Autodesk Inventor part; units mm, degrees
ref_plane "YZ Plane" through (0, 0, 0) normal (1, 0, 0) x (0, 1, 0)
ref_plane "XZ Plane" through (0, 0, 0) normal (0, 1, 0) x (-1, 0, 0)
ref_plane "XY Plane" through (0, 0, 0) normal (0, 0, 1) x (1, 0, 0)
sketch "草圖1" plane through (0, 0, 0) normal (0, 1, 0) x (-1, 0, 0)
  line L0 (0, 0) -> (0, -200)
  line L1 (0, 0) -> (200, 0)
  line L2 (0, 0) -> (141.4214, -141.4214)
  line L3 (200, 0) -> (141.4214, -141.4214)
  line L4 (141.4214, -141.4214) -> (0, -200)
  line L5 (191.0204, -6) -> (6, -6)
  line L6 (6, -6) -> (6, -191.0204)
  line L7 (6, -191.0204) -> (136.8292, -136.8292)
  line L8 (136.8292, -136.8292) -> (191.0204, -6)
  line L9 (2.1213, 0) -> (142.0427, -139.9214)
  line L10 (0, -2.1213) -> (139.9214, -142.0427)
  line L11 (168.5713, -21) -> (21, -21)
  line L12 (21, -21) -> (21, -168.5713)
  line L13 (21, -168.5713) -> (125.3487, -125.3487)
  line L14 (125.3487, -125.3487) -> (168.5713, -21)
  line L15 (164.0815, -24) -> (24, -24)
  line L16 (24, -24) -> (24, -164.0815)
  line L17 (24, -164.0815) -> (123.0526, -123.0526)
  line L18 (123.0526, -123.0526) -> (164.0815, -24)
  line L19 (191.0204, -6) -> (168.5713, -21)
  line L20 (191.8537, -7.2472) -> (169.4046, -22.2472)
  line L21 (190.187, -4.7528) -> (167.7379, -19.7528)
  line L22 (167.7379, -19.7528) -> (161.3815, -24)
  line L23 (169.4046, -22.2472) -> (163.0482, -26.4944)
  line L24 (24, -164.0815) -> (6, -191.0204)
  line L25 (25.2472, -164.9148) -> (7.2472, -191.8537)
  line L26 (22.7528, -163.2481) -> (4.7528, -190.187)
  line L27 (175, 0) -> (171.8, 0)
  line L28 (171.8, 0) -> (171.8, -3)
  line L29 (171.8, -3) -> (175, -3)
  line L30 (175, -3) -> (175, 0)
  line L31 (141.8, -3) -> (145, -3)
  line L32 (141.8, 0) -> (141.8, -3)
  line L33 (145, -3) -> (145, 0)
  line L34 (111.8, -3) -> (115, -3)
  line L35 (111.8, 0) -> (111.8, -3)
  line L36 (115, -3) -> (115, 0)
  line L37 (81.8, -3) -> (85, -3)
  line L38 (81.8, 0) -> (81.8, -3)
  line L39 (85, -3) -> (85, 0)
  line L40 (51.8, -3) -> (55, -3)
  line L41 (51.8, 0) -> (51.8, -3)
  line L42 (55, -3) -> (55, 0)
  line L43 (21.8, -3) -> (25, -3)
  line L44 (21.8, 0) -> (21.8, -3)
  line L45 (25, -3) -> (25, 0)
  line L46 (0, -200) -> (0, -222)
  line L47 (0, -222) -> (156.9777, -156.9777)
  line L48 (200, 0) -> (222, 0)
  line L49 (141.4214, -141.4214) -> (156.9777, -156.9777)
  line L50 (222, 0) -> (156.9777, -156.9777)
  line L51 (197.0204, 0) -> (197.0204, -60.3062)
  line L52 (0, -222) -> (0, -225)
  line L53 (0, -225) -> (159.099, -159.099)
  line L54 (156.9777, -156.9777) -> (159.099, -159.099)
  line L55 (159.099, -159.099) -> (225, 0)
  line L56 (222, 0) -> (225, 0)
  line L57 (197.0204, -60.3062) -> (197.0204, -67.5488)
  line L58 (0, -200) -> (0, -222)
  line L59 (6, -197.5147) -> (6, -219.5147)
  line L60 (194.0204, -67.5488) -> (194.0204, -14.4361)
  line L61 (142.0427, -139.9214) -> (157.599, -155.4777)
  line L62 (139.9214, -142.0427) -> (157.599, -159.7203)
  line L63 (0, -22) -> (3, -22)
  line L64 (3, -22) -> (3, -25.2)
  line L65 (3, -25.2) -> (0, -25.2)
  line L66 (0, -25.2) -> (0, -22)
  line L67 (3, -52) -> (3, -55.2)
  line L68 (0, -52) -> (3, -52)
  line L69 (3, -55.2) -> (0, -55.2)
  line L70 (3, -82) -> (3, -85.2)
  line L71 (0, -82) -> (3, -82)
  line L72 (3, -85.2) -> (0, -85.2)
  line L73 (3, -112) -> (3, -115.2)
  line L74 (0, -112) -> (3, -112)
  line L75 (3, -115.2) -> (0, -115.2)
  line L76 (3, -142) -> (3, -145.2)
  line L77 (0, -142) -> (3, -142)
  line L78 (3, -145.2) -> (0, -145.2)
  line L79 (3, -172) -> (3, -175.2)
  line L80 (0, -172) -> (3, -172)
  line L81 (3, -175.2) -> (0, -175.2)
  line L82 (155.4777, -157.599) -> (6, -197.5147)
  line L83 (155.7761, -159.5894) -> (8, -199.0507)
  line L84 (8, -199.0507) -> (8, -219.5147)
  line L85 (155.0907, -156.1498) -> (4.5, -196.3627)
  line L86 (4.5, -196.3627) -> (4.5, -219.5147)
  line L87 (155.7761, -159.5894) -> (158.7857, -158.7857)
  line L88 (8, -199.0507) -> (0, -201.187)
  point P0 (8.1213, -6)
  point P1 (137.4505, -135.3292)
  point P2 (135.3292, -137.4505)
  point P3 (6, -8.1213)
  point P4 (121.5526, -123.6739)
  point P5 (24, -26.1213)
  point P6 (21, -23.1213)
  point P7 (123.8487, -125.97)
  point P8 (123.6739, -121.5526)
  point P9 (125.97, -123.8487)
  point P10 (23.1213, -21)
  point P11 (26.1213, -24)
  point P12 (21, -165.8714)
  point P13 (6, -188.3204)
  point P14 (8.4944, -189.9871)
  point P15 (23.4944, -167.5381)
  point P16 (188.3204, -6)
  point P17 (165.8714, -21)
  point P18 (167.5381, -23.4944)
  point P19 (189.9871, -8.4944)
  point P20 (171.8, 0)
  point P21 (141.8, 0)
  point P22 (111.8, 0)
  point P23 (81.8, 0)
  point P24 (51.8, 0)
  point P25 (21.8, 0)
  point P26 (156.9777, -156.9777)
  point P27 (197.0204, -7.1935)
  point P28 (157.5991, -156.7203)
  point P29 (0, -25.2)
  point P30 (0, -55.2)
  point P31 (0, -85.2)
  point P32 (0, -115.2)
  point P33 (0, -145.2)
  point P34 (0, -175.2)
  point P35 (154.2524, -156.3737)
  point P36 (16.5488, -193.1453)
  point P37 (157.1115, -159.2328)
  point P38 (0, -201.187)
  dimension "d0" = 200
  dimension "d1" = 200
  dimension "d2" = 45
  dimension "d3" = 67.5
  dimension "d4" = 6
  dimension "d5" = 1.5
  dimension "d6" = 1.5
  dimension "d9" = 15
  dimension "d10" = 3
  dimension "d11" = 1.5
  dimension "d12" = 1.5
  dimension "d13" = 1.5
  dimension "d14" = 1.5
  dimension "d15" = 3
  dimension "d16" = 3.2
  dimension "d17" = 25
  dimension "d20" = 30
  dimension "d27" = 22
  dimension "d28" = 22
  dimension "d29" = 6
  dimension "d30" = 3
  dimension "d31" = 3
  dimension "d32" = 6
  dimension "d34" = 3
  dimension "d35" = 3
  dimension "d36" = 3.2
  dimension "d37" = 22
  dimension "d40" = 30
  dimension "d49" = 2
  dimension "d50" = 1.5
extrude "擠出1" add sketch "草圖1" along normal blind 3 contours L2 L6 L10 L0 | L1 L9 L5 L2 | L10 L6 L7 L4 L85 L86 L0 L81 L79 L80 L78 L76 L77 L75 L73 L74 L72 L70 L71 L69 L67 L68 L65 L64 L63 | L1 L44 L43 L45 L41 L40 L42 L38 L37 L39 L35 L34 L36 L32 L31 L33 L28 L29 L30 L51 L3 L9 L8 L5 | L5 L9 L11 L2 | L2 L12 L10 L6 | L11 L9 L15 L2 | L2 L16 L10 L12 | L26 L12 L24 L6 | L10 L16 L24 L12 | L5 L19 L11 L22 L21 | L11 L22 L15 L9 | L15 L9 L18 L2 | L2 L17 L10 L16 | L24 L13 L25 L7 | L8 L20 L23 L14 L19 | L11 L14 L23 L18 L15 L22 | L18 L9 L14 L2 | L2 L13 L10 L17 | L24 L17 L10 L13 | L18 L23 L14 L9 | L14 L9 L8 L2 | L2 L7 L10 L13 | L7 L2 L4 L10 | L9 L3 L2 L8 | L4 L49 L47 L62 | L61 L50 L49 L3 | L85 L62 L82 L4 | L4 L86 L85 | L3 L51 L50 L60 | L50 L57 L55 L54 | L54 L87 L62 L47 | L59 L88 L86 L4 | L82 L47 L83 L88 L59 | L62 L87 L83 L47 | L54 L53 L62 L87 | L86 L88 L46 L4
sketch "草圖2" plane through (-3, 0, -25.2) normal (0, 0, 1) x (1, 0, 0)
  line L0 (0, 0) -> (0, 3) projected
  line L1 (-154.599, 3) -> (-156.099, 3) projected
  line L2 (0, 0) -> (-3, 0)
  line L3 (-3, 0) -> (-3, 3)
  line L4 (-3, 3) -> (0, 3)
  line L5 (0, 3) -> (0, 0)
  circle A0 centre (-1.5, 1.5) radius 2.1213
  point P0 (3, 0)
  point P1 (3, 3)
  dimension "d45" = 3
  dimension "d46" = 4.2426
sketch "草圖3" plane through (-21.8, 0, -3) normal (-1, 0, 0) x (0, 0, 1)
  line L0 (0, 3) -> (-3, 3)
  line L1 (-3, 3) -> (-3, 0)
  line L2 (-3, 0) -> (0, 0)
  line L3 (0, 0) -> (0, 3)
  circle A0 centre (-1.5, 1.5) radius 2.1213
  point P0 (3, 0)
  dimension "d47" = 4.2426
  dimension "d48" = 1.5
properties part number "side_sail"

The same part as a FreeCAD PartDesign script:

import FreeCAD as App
import Part
import Sketcher
Q = App.Units.Quantity

doc = App.newDocument("Part")
params = doc.addObject("Spreadsheet::Sheet", "Params")
for row, (alias, value) in enumerate([
    ("sketch1_width", "3 mm"),
    ("sketch1_height", "22 mm"),
    ("sketch1_length", "22 mm"),
    ("sketch1_width2", "3.2 mm"),
    ("sketch1_width3", "26.8 mm"),
    ("pad1_length", "3 mm"),
], start=1):
    params.set(f"A{row}", alias)
    params.set(f"B{row}", "=" + value)
    params.setAlias(f"B{row}", alias)

body = doc.addObject("PartDesign::Body", "Body")

# Sketch on XZ plane
sketch1 = body.newObject("Sketcher::SketchObject", "Sketch")
sketch1.AttachmentSupport = (doc.getObject("XZ_Plane"), [""])
sketch1.MapMode = "FlatFace"
sketch1.addGeometry(Part.LineSegment(App.Vector(0, 0, 0), App.Vector(0, -22, 0)), False)
sketch1.addGeometry(Part.LineSegment(App.Vector(0, -22, 0), App.Vector(-3, -22, 0)), False)
sketch1.addGeometry(Part.LineSegment(App.Vector(-3, -22, 0), App.Vector(-3, -25.2, 0)), False)
sketch1.addGeometry(Part.LineSegment(App.Vector(-3, -25.2, 0), App.Vector(0, -25.2, 0)), False)
sketch1.addGeometry(Part.LineSegment(App.Vector(0, -25.2, 0), App.Vector(0, -52, 0)), False)
sketch1.addGeometry(Part.LineSegment(App.Vector(0, -52, 0), App.Vector(-3, -52, 0)), False)
sketch1.addGeometry(Part.LineSegment(App.Vector(-3, -52, 0), App.Vector(-3, -55.2, 0)), False)
sketch1.addGeometry(Part.LineSegment(App.Vector(-3, -55.2, 0), App.Vector(0, -55.2, 0)), False)
sketch1.addGeometry(Part.LineSegment(App.Vector(0, -55.2, 0), App.Vector(0, -82, 0)), False)
sketch1.addGeometry(Part.LineSegment(App.Vector(0, -82, 0), App.Vector(-3, -82, 0)), False)
sketch1.addGeometry(Part.LineSegment(App.Vector(-3, -82, 0), App.Vector(-3, -85.2, 0)), False)
sketch1.addGeometry(Part.LineSegment(App.Vector(-3, -85.2, 0), App.Vector(0, -85.2, 0)), False)
sketch1.addGeometry(Part.LineSegment(App.Vector(0, -85.2, 0), App.Vector(0, -112, 0)), False)
sketch1.addGeometry(Part.LineSegment(App.Vector(0, -112, 0), App.Vector(-3, -112, 0)), False)
sketch1.addGeometry(Part.LineSegment(App.Vector(-3, -112, 0), App.Vector(-3, -115.2, 0)), False)
sketch1.addGeometry(Part.LineSegment(App.Vector(-3, -115.2, 0), App.Vector(0, -115.2, 0)), False)
sketch1.addGeometry(Part.LineSegment(App.Vector(0, -115.2, 0), App.Vector(0, -142, 0)), False)
sketch1.addGeometry(Part.LineSegment(App.Vector(0, -142, 0), App.Vector(-3, -142, 0)), False)
sketch1.addGeometry(Part.LineSegment(App.Vector(-3, -142, 0), App.Vector(-3, -145.2, 0)), False)
sketch1.addGeometry(Part.LineSegment(App.Vector(-3, -145.2, 0), App.Vector(0, -145.2, 0)), False)
sketch1.addGeometry(Part.LineSegment(App.Vector(0, -145.2, 0), App.Vector(0, -172, 0)), False)
sketch1.addGeometry(Part.LineSegment(App.Vector(0, -172, 0), App.Vector(-3, -172, 0)), False)
sketch1.addGeometry(Part.LineSegment(App.Vector(-3, -172, 0), App.Vector(-3, -175.2, 0)), False)
sketch1.addGeometry(Part.LineSegment(App.Vector(-3, -175.2, 0), App.Vector(0, -175.2, 0)), False)
sketch1.addGeometry(Part.LineSegment(App.Vector(0, -175.2, 0), App.Vector(0, -201.187, 0)), False)
sketch1.addGeometry(Part.LineSegment(App.Vector(0, -201.187, 0), App.Vector(-8, -199.0507, 0)), False)
sketch1.addGeometry(Part.LineSegment(App.Vector(-8, -199.0507, 0), App.Vector(-155.7761, -159.5894, 0)), False)
sketch1.addGeometry(Part.LineSegment(App.Vector(-155.7761, -159.5894, 0), App.Vector(-157.11149, -159.23279, 0)), False)
sketch1.addGeometry(Part.LineSegment(App.Vector(-157.11149, -159.23279, 0), App.Vector(-157.599, -159.7203, 0)), False)
sketch1.addGeometry(Part.LineSegment(App.Vector(-157.599007, -159.720318, 0), App.Vector(-159.099, -159.099, 0)), False)
sketch1.addGeometry(Part.LineSegment(App.Vector(-159.099, -159.099, 0), App.Vector(-197.020362, -67.548784, 0)), False)
sketch1.addGeometry(Part.LineSegment(App.Vector(-197.0204, -67.5488, 0), App.Vector(-197.0204, 0, 0)), False)
sketch1.addGeometry(Part.LineSegment(App.Vector(-197.0204, 0, 0), App.Vector(-175, 0, 0)), False)
sketch1.addGeometry(Part.LineSegment(App.Vector(-175, 0, 0), App.Vector(-175, -3, 0)), False)
sketch1.addGeometry(Part.LineSegment(App.Vector(-175, -3, 0), App.Vector(-171.8, -3, 0)), False)
sketch1.addGeometry(Part.LineSegment(App.Vector(-171.8, -3, 0), App.Vector(-171.8, 0, 0)), False)
sketch1.addGeometry(Part.LineSegment(App.Vector(-171.8, 0, 0), App.Vector(-145, 0, 0)), False)
sketch1.addGeometry(Part.LineSegment(App.Vector(-145, 0, 0), App.Vector(-145, -3, 0)), False)
sketch1.addGeometry(Part.LineSegment(App.Vector(-145, -3, 0), App.Vector(-141.8, -3, 0)), False)
sketch1.addGeometry(Part.LineSegment(App.Vector(-141.8, -3, 0), App.Vector(-141.8, 0, 0)), False)
sketch1.addGeometry(Part.LineSegment(App.Vector(-141.8, 0, 0), App.Vector(-115, 0, 0)), False)
sketch1.addGeometry(Part.LineSegment(App.Vector(-115, 0, 0), App.Vector(-115, -3, 0)), False)
sketch1.addGeometry(Part.LineSegment(App.Vector(-115, -3, 0), App.Vector(-111.8, -3, 0)), False)
sketch1.addGeometry(Part.LineSegment(App.Vector(-111.8, -3, 0), App.Vector(-111.8, 0, 0)), False)
sketch1.addGeometry(Part.LineSegment(App.Vector(-111.8, 0, 0), App.Vector(-85, 0, 0)), False)
sketch1.addGeometry(Part.LineSegment(App.Vector(-85, 0, 0), App.Vector(-85, -3, 0)), False)
sketch1.addGeometry(Part.LineSegment(App.Vector(-85, -3, 0), App.Vector(-81.8, -3, 0)), False)
sketch1.addGeometry(Part.LineSegment(App.Vector(-81.8, -3, 0), App.Vector(-81.8, 0, 0)), False)
sketch1.addGeometry(Part.LineSegment(App.Vector(-81.8, 0, 0), App.Vector(-55, 0, 0)), False)
sketch1.addGeometry(Part.LineSegment(App.Vector(-55, 0, 0), App.Vector(-55, -3, 0)), False)
sketch1.addGeometry(Part.LineSegment(App.Vector(-55, -3, 0), App.Vector(-51.8, -3, 0)), False)
sketch1.addGeometry(Part.LineSegment(App.Vector(-51.8, -3, 0), App.Vector(-51.8, 0, 0)), False)
sketch1.addGeometry(Part.LineSegment(App.Vector(-51.8, 0, 0), App.Vector(-25, 0, 0)), False)
sketch1.addGeometry(Part.LineSegment(App.Vector(-25, 0, 0), App.Vector(-25, -3, 0)), False)
sketch1.addGeometry(Part.LineSegment(App.Vector(-25, -3, 0), App.Vector(-21.8, -3, 0)), False)
sketch1.addGeometry(Part.LineSegment(App.Vector(-21.8, -3, 0), App.Vector(-21.8, 0, 0)), False)
sketch1.addGeometry(Part.LineSegment(App.Vector(-21.8, 0, 0), App.Vector(0, 0, 0)), False)
sketch1.addGeometry(Part.LineSegment(App.Vector(-6, -8.1213, 0), App.Vector(-21, -23.1213, 0)), False)
sketch1.addGeometry(Part.LineSegment(App.Vector(-21, -23.1213, 0), App.Vector(-21, -165.87135, 0)), False)
sketch1.addGeometry(Part.LineSegment(App.Vector(-21, -165.87135, 0), App.Vector(-6, -188.320434, 0)), False)
sketch1.addGeometry(Part.LineSegment(App.Vector(-6, -188.320434, 0), App.Vector(-6, -8.1213, 0)), False)
sketch1.addGeometry(Part.LineSegment(App.Vector(-135.329214, -137.450514, 0), App.Vector(-8.494351, -189.987206, 0)), False)
sketch1.addGeometry(Part.LineSegment(App.Vector(-8.494351, -189.987206, 0), App.Vector(-23.494366, -167.538101, 0)), False)
sketch1.addGeometry(Part.LineSegment(App.Vector(-23.494366, -167.538101, 0), App.Vector(-123.848714, -125.970014, 0)), False)
sketch1.addGeometry(Part.LineSegment(App.Vector(-123.848714, -125.970014, 0), App.Vector(-135.329214, -137.450514, 0)), False)
sketch1.addGeometry(Part.LineSegment(App.Vector(-16.548896, -193.14523, 0), App.Vector(-139.921407, -142.042717, 0)), False)
sketch1.addGeometry(Part.LineSegment(App.Vector(-139.9214, -142.0427, 0), App.Vector(-154.252364, -156.373664, 0)), False)
sketch1.addGeometry(Part.LineSegment(App.Vector(-154.252364, -156.373664, 0), App.Vector(-16.548896, -193.14523, 0)), False)
sketch1.addGeometry(Part.LineSegment(App.Vector(-142.042717, -139.921407, 0), App.Vector(-194.020381, -14.436092, 0)), False)
sketch1.addGeometry(Part.LineSegment(App.Vector(-194.0204, -14.4361, 0), App.Vector(-194.0204, -67.5488, 0)), False)
sketch1.addGeometry(Part.LineSegment(App.Vector(-194.020372, -67.548789, 0), App.Vector(-157.599017, -155.477707, 0)), False)
sketch1.addGeometry(Part.LineSegment(App.Vector(-157.599, -155.4777, 0), App.Vector(-142.0427, -139.9214, 0)), False)
sketch1.addGeometry(Part.LineSegment(App.Vector(-189.987207, -8.49435, 0), App.Vector(-137.450514, -135.329214, 0)), False)
sketch1.addGeometry(Part.LineSegment(App.Vector(-137.450514, -135.329214, 0), App.Vector(-125.970014, -123.848714, 0)), False)
sketch1.addGeometry(Part.LineSegment(App.Vector(-125.970014, -123.848714, 0), App.Vector(-167.538109, -23.494346, 0)), False)
sketch1.addGeometry(Part.LineSegment(App.Vector(-167.538109, -23.494346, 0), App.Vector(-169.4046, -22.2472, 0)), False)
sketch1.addGeometry(Part.LineSegment(App.Vector(-169.4046, -22.2472, 0), App.Vector(-189.987207, -8.49435, 0)), False)
sketch1.addGeometry(Part.LineSegment(App.Vector(-8.1213, -6, 0), App.Vector(-188.320432, -6, 0)), False)
sketch1.addGeometry(Part.LineSegment(App.Vector(-188.320432, -6, 0), App.Vector(-167.7379, -19.7528, 0)), False)
sketch1.addGeometry(Part.LineSegment(App.Vector(-167.7379, -19.7528, 0), App.Vector(-165.871329, -21, 0)), False)
sketch1.addGeometry(Part.LineSegment(App.Vector(-165.871329, -21, 0), App.Vector(-23.1213, -21, 0)), False)
sketch1.addGeometry(Part.LineSegment(App.Vector(-23.1213, -21, 0), App.Vector(-8.1213, -6, 0)), False)
sketch1.addGeometry(Part.LineSegment(App.Vector(-24, -26.1213, 0), App.Vector(-121.552614, -123.673914, 0)), False)
sketch1.addGeometry(Part.LineSegment(App.Vector(-121.552614, -123.673914, 0), App.Vector(-24, -164.0815, 0)), False)
sketch1.addGeometry(Part.LineSegment(App.Vector(-24, -164.0815, 0), App.Vector(-24, -26.1213, 0)), False)
sketch1.addGeometry(Part.LineSegment(App.Vector(-164.0815, -24, 0), App.Vector(-123.673914, -121.552614, 0)), False)
sketch1.addGeometry(Part.LineSegment(App.Vector(-123.673914, -121.552614, 0), App.Vector(-26.1213, -24, 0)), False)
sketch1.addGeometry(Part.LineSegment(App.Vector(-26.1213, -24, 0), App.Vector(-164.0815, -24, 0)), False)
sketch1.addConstraint(Sketcher.Constraint("Coincident", 0, 2, 1, 1))
sketch1.addConstraint(Sketcher.Constraint("Coincident", 1, 2, 2, 1))
sketch1.addConstraint(Sketcher.Constraint("Coincident", 2, 2, 3, 1))
sketch1.addConstraint(Sketcher.Constraint("Coincident", 3, 2, 4, 1))
sketch1.addConstraint(Sketcher.Constraint("Coincident", 4, 2, 5, 1))
sketch1.addConstraint(Sketcher.Constraint("Coincident", 5, 2, 6, 1))
sketch1.addConstraint(Sketcher.Constraint("Coincident", 6, 2, 7, 1))
sketch1.addConstraint(Sketcher.Constraint("Coincident", 7, 2, 8, 1))
sketch1.addConstraint(Sketcher.Constraint("Coincident", 8, 2, 9, 1))
sketch1.addConstraint(Sketcher.Constraint("Coincident", 9, 2, 10, 1))
sketch1.addConstraint(Sketcher.Constraint("Coincident", 10, 2, 11, 1))
sketch1.addConstraint(Sketcher.Constraint("Coincident", 11, 2, 12, 1))
sketch1.addConstraint(Sketcher.Constraint("Coincident", 12, 2, 13, 1))
sketch1.addConstraint(Sketcher.Constraint("Coincident", 13, 2, 14, 1))
sketch1.addConstraint(Sketcher.Constraint("Coincident", 14, 2, 15, 1))
sketch1.addConstraint(Sketcher.Constraint("Coincident", 15, 2, 16, 1))
sketch1.addConstraint(Sketcher.Constraint("Coincident", 16, 2, 17, 1))
sketch1.addConstraint(Sketcher.Constraint("Coincident", 17, 2, 18, 1))
sketch1.addConstraint(Sketcher.Constraint("Coincident", 18, 2, 19, 1))
sketch1.addConstraint(Sketcher.Constraint("Coincident", 19, 2, 20, 1))
sketch1.addConstraint(Sketcher.Constraint("Coincident", 20, 2, 21, 1))
sketch1.addConstraint(Sketcher.Constraint("Coincident", 21, 2, 22, 1))
sketch1.addConstraint(Sketcher.Constraint("Coincident", 22, 2, 23, 1))
sketch1.addConstraint(Sketcher.Constraint("Coincident", 23, 2, 24, 1))
sketch1.addConstraint(Sketcher.Constraint("Coincident", 24, 2, 25, 1))
sketch1.addConstraint(Sketcher.Constraint("Coincident", 25, 2, 26, 1))
sketch1.addConstraint(Sketcher.Constraint("Coincident", 26, 2, 27, 1))
sketch1.addConstraint(Sketcher.Constraint("Coincident", 27, 2, 28, 1))
sketch1.addConstraint(Sketcher.Constraint("Coincident", 28, 2, 29, 1))
sketch1.addConstraint(Sketcher.Constraint("Coincident", 29, 2, 30, 1))
sketch1.addConstraint(Sketcher.Constraint("Coincident", 30, 2, 31, 1))
sketch1.addConstraint(Sketcher.Constraint("Coincident", 31, 2, 32, 1))
sketch1.addConstraint(Sketcher.Constraint("Coincident", 32, 2, 33, 1))
sketch1.addConstraint(Sketcher.Constraint("Coincident", 33, 2, 34, 1))
sketch1.addConstraint(Sketcher.Constraint("Coincident", 34, 2, 35, 1))
sketch1.addConstraint(Sketcher.Constraint("Coincident", 35, 2, 36, 1))
sketch1.addConstraint(Sketcher.Constraint("Coincident", 36, 2, 37, 1))
sketch1.addConstraint(Sketcher.Constraint("Coincident", 37, 2, 38, 1))
sketch1.addConstraint(Sketcher.Constraint("Coincident", 38, 2, 39, 1))
sketch1.addConstraint(Sketcher.Constraint("Coincident", 39, 2, 40, 1))
sketch1.addConstraint(Sketcher.Constraint("Coincident", 40, 2, 41, 1))
sketch1.addConstraint(Sketcher.Constraint("Coincident", 41, 2, 42, 1))
sketch1.addConstraint(Sketcher.Constraint("Coincident", 42, 2, 43, 1))
sketch1.addConstraint(Sketcher.Constraint("Coincident", 43, 2, 44, 1))
sketch1.addConstraint(Sketcher.Constraint("Coincident", 44, 2, 45, 1))
sketch1.addConstraint(Sketcher.Constraint("Coincident", 45, 2, 46, 1))
sketch1.addConstraint(Sketcher.Constraint("Coincident", 46, 2, 47, 1))
sketch1.addConstraint(Sketcher.Constraint("Coincident", 47, 2, 48, 1))
sketch1.addConstraint(Sketcher.Constraint("Coincident", 48, 2, 49, 1))
sketch1.addConstraint(Sketcher.Constraint("Coincident", 49, 2, 50, 1))
sketch1.addConstraint(Sketcher.Constraint("Coincident", 50, 2, 51, 1))
sketch1.addConstraint(Sketcher.Constraint("Coincident", 51, 2, 52, 1))
sketch1.addConstraint(Sketcher.Constraint("Coincident", 52, 2, 53, 1))
sketch1.addConstraint(Sketcher.Constraint("Coincident", 53, 2, 54, 1))
sketch1.addConstraint(Sketcher.Constraint("Coincident", 54, 2, 55, 1))
sketch1.addConstraint(Sketcher.Constraint("Coincident", 55, 2, 56, 1))
sketch1.addConstraint(Sketcher.Constraint("Coincident", 56, 2, 0, 1))
sketch1.addConstraint(Sketcher.Constraint("Coincident", 57, 2, 58, 1))
sketch1.addConstraint(Sketcher.Constraint("Coincident", 58, 2, 59, 1))
sketch1.addConstraint(Sketcher.Constraint("Coincident", 59, 2, 60, 1))
sketch1.addConstraint(Sketcher.Constraint("Coincident", 60, 2, 57, 1))
sketch1.addConstraint(Sketcher.Constraint("Coincident", 61, 2, 62, 1))
sketch1.addConstraint(Sketcher.Constraint("Coincident", 62, 2, 63, 1))
sketch1.addConstraint(Sketcher.Constraint("Coincident", 63, 2, 64, 1))
sketch1.addConstraint(Sketcher.Constraint("Coincident", 64, 2, 61, 1))
sketch1.addConstraint(Sketcher.Constraint("Coincident", 65, 2, 66, 1))
sketch1.addConstraint(Sketcher.Constraint("Coincident", 66, 2, 67, 1))
sketch1.addConstraint(Sketcher.Constraint("Coincident", 67, 2, 65, 1))
sketch1.addConstraint(Sketcher.Constraint("Coincident", 68, 2, 69, 1))
sketch1.addConstraint(Sketcher.Constraint("Coincident", 69, 2, 70, 1))
sketch1.addConstraint(Sketcher.Constraint("Coincident", 70, 2, 71, 1))
sketch1.addConstraint(Sketcher.Constraint("Coincident", 71, 2, 68, 1))
sketch1.addConstraint(Sketcher.Constraint("Coincident", 72, 2, 73, 1))
sketch1.addConstraint(Sketcher.Constraint("Coincident", 73, 2, 74, 1))
sketch1.addConstraint(Sketcher.Constraint("Coincident", 74, 2, 75, 1))
sketch1.addConstraint(Sketcher.Constraint("Coincident", 75, 2, 76, 1))
sketch1.addConstraint(Sketcher.Constraint("Coincident", 76, 2, 72, 1))
sketch1.addConstraint(Sketcher.Constraint("Coincident", 77, 2, 78, 1))
sketch1.addConstraint(Sketcher.Constraint("Coincident", 78, 2, 79, 1))
sketch1.addConstraint(Sketcher.Constraint("Coincident", 79, 2, 80, 1))
sketch1.addConstraint(Sketcher.Constraint("Coincident", 80, 2, 81, 1))
sketch1.addConstraint(Sketcher.Constraint("Coincident", 81, 2, 77, 1))
sketch1.addConstraint(Sketcher.Constraint("Coincident", 82, 2, 83, 1))
sketch1.addConstraint(Sketcher.Constraint("Coincident", 83, 2, 84, 1))
sketch1.addConstraint(Sketcher.Constraint("Coincident", 84, 2, 82, 1))
sketch1.addConstraint(Sketcher.Constraint("Coincident", 85, 2, 86, 1))
sketch1.addConstraint(Sketcher.Constraint("Coincident", 86, 2, 87, 1))
sketch1.addConstraint(Sketcher.Constraint("Coincident", 87, 2, 85, 1))
sketch1.addConstraint(Sketcher.Constraint("Vertical", 0))
sketch1.addConstraint(Sketcher.Constraint("Horizontal", 1))
sketch1.addConstraint(Sketcher.Constraint("Vertical", 2))
sketch1.addConstraint(Sketcher.Constraint("Horizontal", 3))
sketch1.addConstraint(Sketcher.Constraint("Vertical", 4))
sketch1.addConstraint(Sketcher.Constraint("Horizontal", 5))
sketch1.addConstraint(Sketcher.Constraint("Vertical", 6))
sketch1.addConstraint(Sketcher.Constraint("Horizontal", 7))
sketch1.addConstraint(Sketcher.Constraint("Vertical", 8))
sketch1.addConstraint(Sketcher.Constraint("Horizontal", 9))
sketch1.addConstraint(Sketcher.Constraint("Vertical", 10))
sketch1.addConstraint(Sketcher.Constraint("Horizontal", 11))
sketch1.addConstraint(Sketcher.Constraint("Vertical", 12))
sketch1.addConstraint(Sketcher.Constraint("Horizontal", 13))
sketch1.addConstraint(Sketcher.Constraint("Vertical", 14))
sketch1.addConstraint(Sketcher.Constraint("Horizontal", 15))
sketch1.addConstraint(Sketcher.Constraint("Vertical", 16))
sketch1.addConstraint(Sketcher.Constraint("Horizontal", 17))
sketch1.addConstraint(Sketcher.Constraint("Vertical", 18))
sketch1.addConstraint(Sketcher.Constraint("Horizontal", 19))
sketch1.addConstraint(Sketcher.Constraint("Vertical", 20))
sketch1.addConstraint(Sketcher.Constraint("Horizontal", 21))
sketch1.addConstraint(Sketcher.Constraint("Vertical", 22))
sketch1.addConstraint(Sketcher.Constraint("Horizontal", 23))
sketch1.addConstraint(Sketcher.Constraint("Vertical", 24))
sketch1.addConstraint(Sketcher.Constraint("Vertical", 31))
sketch1.addConstraint(Sketcher.Constraint("Horizontal", 32))
sketch1.addConstraint(Sketcher.Constraint("Vertical", 33))
sketch1.addConstraint(Sketcher.Constraint("Horizontal", 34))
sketch1.addConstraint(Sketcher.Constraint("Vertical", 35))
sketch1.addConstraint(Sketcher.Constraint("Horizontal", 36))
sketch1.addConstraint(Sketcher.Constraint("Vertical", 37))
sketch1.addConstraint(Sketcher.Constraint("Horizontal", 38))
sketch1.addConstraint(Sketcher.Constraint("Vertical", 39))
sketch1.addConstraint(Sketcher.Constraint("Horizontal", 40))
sketch1.addConstraint(Sketcher.Constraint("Vertical", 41))
sketch1.addConstraint(Sketcher.Constraint("Horizontal", 42))
sketch1.addConstraint(Sketcher.Constraint("Vertical", 43))
sketch1.addConstraint(Sketcher.Constraint("Horizontal", 44))
sketch1.addConstraint(Sketcher.Constraint("Vertical", 45))
sketch1.addConstraint(Sketcher.Constraint("Horizontal", 46))
sketch1.addConstraint(Sketcher.Constraint("Vertical", 47))
sketch1.addConstraint(Sketcher.Constraint("Horizontal", 48))
sketch1.addConstraint(Sketcher.Constraint("Vertical", 49))
sketch1.addConstraint(Sketcher.Constraint("Horizontal", 50))
sketch1.addConstraint(Sketcher.Constraint("Vertical", 51))
sketch1.addConstraint(Sketcher.Constraint("Horizontal", 52))
sketch1.addConstraint(Sketcher.Constraint("Vertical", 53))
sketch1.addConstraint(Sketcher.Constraint("Horizontal", 54))
sketch1.addConstraint(Sketcher.Constraint("Vertical", 55))
sketch1.addConstraint(Sketcher.Constraint("Horizontal", 56))
sketch1.addConstraint(Sketcher.Constraint("Vertical", 58))
sketch1.addConstraint(Sketcher.Constraint("Vertical", 60))
sketch1.addConstraint(Sketcher.Constraint("Vertical", 69))
sketch1.addConstraint(Sketcher.Constraint("Horizontal", 77))
sketch1.addConstraint(Sketcher.Constraint("Horizontal", 80))
sketch1.addConstraint(Sketcher.Constraint("Vertical", 84))
sketch1.addConstraint(Sketcher.Constraint("Horizontal", 87))
sketch1.addConstraint(Sketcher.Constraint("Coincident", 56, 2, -1, 1))
sketch1.addConstraint(Sketcher.Constraint("PointOnObject", 3, 2, -2))
sketch1.addConstraint(Sketcher.Constraint("PointOnObject", 7, 2, -2))
sketch1.addConstraint(Sketcher.Constraint("PointOnObject", 11, 2, -2))
sketch1.addConstraint(Sketcher.Constraint("PointOnObject", 15, 2, -2))
sketch1.addConstraint(Sketcher.Constraint("PointOnObject", 19, 2, -2))
sketch1.addConstraint(Sketcher.Constraint("PointOnObject", 23, 2, -2))
sketch1.addConstraint(Sketcher.Constraint("PointOnObject", 31, 2, -1))
sketch1.addConstraint(Sketcher.Constraint("PointOnObject", 35, 2, -1))
sketch1.addConstraint(Sketcher.Constraint("PointOnObject", 39, 2, -1))
sketch1.addConstraint(Sketcher.Constraint("PointOnObject", 43, 2, -1))
sketch1.addConstraint(Sketcher.Constraint("PointOnObject", 47, 2, -1))
sketch1.addConstraint(Sketcher.Constraint("PointOnObject", 51, 2, -1))
sketch1.addConstraint(Sketcher.Constraint("Parallel", 25, 26))
sketch1.addConstraint(Sketcher.Constraint("Parallel", 26, 27))
sketch1.addConstraint(Sketcher.Constraint("Parallel", 28, 57))
sketch1.addConstraint(Sketcher.Constraint("Parallel", 29, 61))
sketch1.addConstraint(Sketcher.Constraint("Parallel", 59, 62))
sketch1.addConstraint(Sketcher.Constraint("Parallel", 61, 63))
sketch1.addConstraint(Sketcher.Constraint("Parallel", 57, 64))
sketch1.addConstraint(Sketcher.Constraint("Parallel", 63, 65))
sketch1.addConstraint(Sketcher.Constraint("Parallel", 64, 66))
sketch1.addConstraint(Sketcher.Constraint("Parallel", 27, 67))
sketch1.addConstraint(Sketcher.Constraint("Parallel", 30, 68))
sketch1.addConstraint(Sketcher.Constraint("Parallel", 68, 70))
sketch1.addConstraint(Sketcher.Constraint("Parallel", 66, 71))
sketch1.addConstraint(Sketcher.Constraint("Parallel", 70, 72))
sketch1.addConstraint(Sketcher.Constraint("Parallel", 71, 73))
sketch1.addConstraint(Sketcher.Constraint("Parallel", 72, 74))
sketch1.addConstraint(Sketcher.Constraint("Parallel", 75, 76))
sketch1.addConstraint(Sketcher.Constraint("Parallel", 76, 78))
sketch1.addConstraint(Sketcher.Constraint("Parallel", 78, 79))
sketch1.addConstraint(Sketcher.Constraint("Parallel", 73, 81))
sketch1.addConstraint(Sketcher.Constraint("Parallel", 81, 82))
sketch1.addConstraint(Sketcher.Constraint("Parallel", 65, 83))
sketch1.addConstraint(Sketcher.Constraint("Parallel", 74, 85))
sketch1.addConstraint(Sketcher.Constraint("Parallel", 82, 86))
sketch1.addConstraint(Sketcher.Constraint("Horizontal", 34, 2, 37, 2))
sketch1.addConstraint(Sketcher.Constraint("Horizontal", 38, 2, 41, 2))
sketch1.addConstraint(Sketcher.Constraint("Horizontal", 42, 2, 45, 2))
sketch1.addConstraint(Sketcher.Constraint("Horizontal", 46, 2, 49, 2))
sketch1.addConstraint(Sketcher.Constraint("Horizontal", 50, 2, 53, 2))
sketch1.addConstraint(Sketcher.Constraint("Horizontal", 30, 2, 69, 2))
sketch1.addConstraint(Sketcher.Constraint("Vertical", 2, 2, 5, 2))
sketch1.addConstraint(Sketcher.Constraint("Vertical", 6, 2, 9, 2))
sketch1.addConstraint(Sketcher.Constraint("Vertical", 10, 2, 13, 2))
sketch1.addConstraint(Sketcher.Constraint("Vertical", 14, 2, 17, 2))
sketch1.addConstraint(Sketcher.Constraint("Vertical", 18, 2, 21, 2))
sketch1.addConstraint(Sketcher.Constraint("Vertical", 28, 2, 70, 2))
sketch1.addConstraint(Sketcher.Constraint("Equal", 34, 38))
sketch1.addConstraint(Sketcher.Constraint("Equal", 36, 40))
sketch1.addConstraint(Sketcher.Constraint("Equal", 38, 42))
sketch1.addConstraint(Sketcher.Constraint("Equal", 40, 44))
sketch1.addConstraint(Sketcher.Constraint("Equal", 42, 46))
sketch1.addConstraint(Sketcher.Constraint("Equal", 44, 48))
sketch1.addConstraint(Sketcher.Constraint("Equal", 46, 50))
sketch1.addConstraint(Sketcher.Constraint("Equal", 48, 52))
sketch1.addConstraint(Sketcher.Constraint("Equal", 50, 54))
sketch1.addConstraint(Sketcher.Constraint("Equal", 54, 2))
sketch1.addConstraint(Sketcher.Constraint("Equal", 52, 4))
sketch1.addConstraint(Sketcher.Constraint("Equal", 2, 6))
sketch1.addConstraint(Sketcher.Constraint("Equal", 4, 8))
sketch1.addConstraint(Sketcher.Constraint("Equal", 6, 10))
sketch1.addConstraint(Sketcher.Constraint("Equal", 8, 12))
sketch1.addConstraint(Sketcher.Constraint("Equal", 10, 14))
sketch1.addConstraint(Sketcher.Constraint("Equal", 12, 16))
sketch1.addConstraint(Sketcher.Constraint("Equal", 14, 18))
sketch1.addConstraint(Sketcher.Constraint("Equal", 16, 20))
sketch1.addConstraint(Sketcher.Constraint("Equal", 18, 22))
sketch1.addConstraint(Sketcher.Constraint("Equal", 23, 33))
sketch1.addConstraint(Sketcher.Constraint("Equal", 80, 58))
sketch1.addConstraint(Sketcher.Constraint("Equal", 77, 60))
sketch1.addConstraint(Sketcher.Constraint("Equal", 87, 84))
sketch1.addConstraint(Sketcher.Constraint("Equal", 59, 62))
sketch1.addConstraint(Sketcher.Constraint("Equal", 61, 72))
sketch1.addConstraint(Sketcher.Constraint("Equal", 64, 73))
sketch1.addConstraint(Sketcher.Constraint("Equal", 63, 74))
sketch1.addConstraint(Sketcher.Constraint("Equal", 76, 78))
sketch1.addConstraint(Sketcher.Constraint("Equal", 75, 79))
sketch1.addConstraint(Sketcher.Constraint("Equal", 57, 81))
sketch1.addConstraint(Sketcher.Constraint("DistanceX", 1, 2, 1, 1, 3.0))
sketch1.addConstraint(Sketcher.Constraint("DistanceY", 0, 2, 0, 1, 22.0))
sketch1.addConstraint(Sketcher.Constraint("Distance", 71, 22.0))
sketch1.addConstraint(Sketcher.Constraint("DistanceX", 34, 1, 34, 2, 3.2))
sketch1.addConstraint(Sketcher.Constraint("DistanceX", 52, 2, -1, 1, 25.0))
sketch1.addConstraint(Sketcher.Constraint("DistanceX", 59, 2, -1, 1, 6.0))
sketch1.addConstraint(Sketcher.Constraint("DistanceY", 77, 2, -1, 1, 6.0))
sketch1.addConstraint(Sketcher.Constraint("Angle", 70, Q("-67.5 deg")))
sketch1.addConstraint(Sketcher.Constraint("DistanceX", 36, 1, 36, 2, 26.8))
sketch1.addConstraint(Sketcher.Constraint("DistanceX", 25, 2, -1, 1, 8.0))
sketch1.addConstraint(Sketcher.Constraint("DistanceX", 57, 2, -1, 1, 21.0))
sketch1.addConstraint(Sketcher.Constraint("DistanceX", 83, 2, -1, 1, 24.0))
sketch1.addConstraint(Sketcher.Constraint("DistanceY", 86, 2, -1, 1, 24.0))
sketch1.addConstraint(Sketcher.Constraint("DistanceX", 80, 1, 80, 2, 142.75))
sketch1.addConstraint(Sketcher.Constraint("Angle", 26, Q("165.049 deg")))
sketch1.addConstraint(Sketcher.Constraint("Angle", 59, Q("-56.25 deg")))
sketch1.addConstraint(Sketcher.Constraint("DistanceY", 24, 2, 24, 1, 25.987))
sketch1.addConstraint(Sketcher.Constraint("DistanceY", 63, 2, -1, 1, 125.97))
sketch1.addConstraint(Sketcher.Constraint("DistanceX", 73, 2, -1, 1, 125.97))
sketch1.addConstraint(Sketcher.Constraint("Distance", 61, 137.285))
sketch1.addConstraint(Sketcher.Constraint("Distance", 66, 20.267))
sketch1.addConstraint(Sketcher.Constraint("Distance", 79, 2.245))
sketch1.addConstraint(Sketcher.Constraint("DistanceX", 32, 1, 32, 2, 22.0204))
sketch1.addConstraint(Sketcher.Constraint("DistanceX", 87, 2, 87, 1, 137.9602))
sketch1.addConstraint(Sketcher.Constraint("DistanceY", 31, 1, 31, 2, 67.5488))
sketch1.addConstraint(Sketcher.Constraint("DistanceX", 26, 2, -1, 1, 155.776))
sketch1.addConstraint(Sketcher.Constraint("DistanceX", 28, 2, -1, 1, 157.599))
sketch1.addConstraint(Sketcher.Constraint("DistanceX", 29, 2, -1, 1, 159.099))
sketch1.addConstraint(Sketcher.Constraint("DistanceX", 67, 2, -1, 1, 16.549))
sketch1.addConstraint(Sketcher.Constraint("DistanceX", 78, 2, -1, 1, 167.738))
sketch1.addConstraint(Sketcher.Constraint("DistanceY", 82, 2, -1, 1, 123.674))
sketch1.addConstraint(Sketcher.Constraint("DistanceX", 85, 2, -1, 1, 123.674))
sketch1.addConstraint(Sketcher.Constraint("Distance", 68, 135.8243))
sketch1.addConstraint(Sketcher.Constraint("DistanceY", 57, 2, -1, 1, 23.1213))
sketch1.addConstraint(Sketcher.Constraint("DistanceX", 61, 2, -1, 1, 8.4944))
sketch1.addConstraint(Sketcher.Constraint("DistanceY", 65, 2, -1, 1, 142.0427))
sketch1.addConstraint(Sketcher.Constraint("DistanceY", 72, 2, -1, 1, 135.3292))
sketch1.setExpression("Constraints[226]", "Params.sketch1_width")
sketch1.setExpression("Constraints[227]", "Params.sketch1_height")
sketch1.setExpression("Constraints[228]", "Params.sketch1_length")
sketch1.setExpression("Constraints[229]", "Params.sketch1_width2")
sketch1.setExpression("Constraints[234]", "Params.sketch1_width3")
pad1 = body.newObject("PartDesign::Pad", "Pad")
pad1.Profile = sketch1
pad1.setExpression("Length", "Params.pad1_length")
pad1.Reversed = True

doc.recompute()
